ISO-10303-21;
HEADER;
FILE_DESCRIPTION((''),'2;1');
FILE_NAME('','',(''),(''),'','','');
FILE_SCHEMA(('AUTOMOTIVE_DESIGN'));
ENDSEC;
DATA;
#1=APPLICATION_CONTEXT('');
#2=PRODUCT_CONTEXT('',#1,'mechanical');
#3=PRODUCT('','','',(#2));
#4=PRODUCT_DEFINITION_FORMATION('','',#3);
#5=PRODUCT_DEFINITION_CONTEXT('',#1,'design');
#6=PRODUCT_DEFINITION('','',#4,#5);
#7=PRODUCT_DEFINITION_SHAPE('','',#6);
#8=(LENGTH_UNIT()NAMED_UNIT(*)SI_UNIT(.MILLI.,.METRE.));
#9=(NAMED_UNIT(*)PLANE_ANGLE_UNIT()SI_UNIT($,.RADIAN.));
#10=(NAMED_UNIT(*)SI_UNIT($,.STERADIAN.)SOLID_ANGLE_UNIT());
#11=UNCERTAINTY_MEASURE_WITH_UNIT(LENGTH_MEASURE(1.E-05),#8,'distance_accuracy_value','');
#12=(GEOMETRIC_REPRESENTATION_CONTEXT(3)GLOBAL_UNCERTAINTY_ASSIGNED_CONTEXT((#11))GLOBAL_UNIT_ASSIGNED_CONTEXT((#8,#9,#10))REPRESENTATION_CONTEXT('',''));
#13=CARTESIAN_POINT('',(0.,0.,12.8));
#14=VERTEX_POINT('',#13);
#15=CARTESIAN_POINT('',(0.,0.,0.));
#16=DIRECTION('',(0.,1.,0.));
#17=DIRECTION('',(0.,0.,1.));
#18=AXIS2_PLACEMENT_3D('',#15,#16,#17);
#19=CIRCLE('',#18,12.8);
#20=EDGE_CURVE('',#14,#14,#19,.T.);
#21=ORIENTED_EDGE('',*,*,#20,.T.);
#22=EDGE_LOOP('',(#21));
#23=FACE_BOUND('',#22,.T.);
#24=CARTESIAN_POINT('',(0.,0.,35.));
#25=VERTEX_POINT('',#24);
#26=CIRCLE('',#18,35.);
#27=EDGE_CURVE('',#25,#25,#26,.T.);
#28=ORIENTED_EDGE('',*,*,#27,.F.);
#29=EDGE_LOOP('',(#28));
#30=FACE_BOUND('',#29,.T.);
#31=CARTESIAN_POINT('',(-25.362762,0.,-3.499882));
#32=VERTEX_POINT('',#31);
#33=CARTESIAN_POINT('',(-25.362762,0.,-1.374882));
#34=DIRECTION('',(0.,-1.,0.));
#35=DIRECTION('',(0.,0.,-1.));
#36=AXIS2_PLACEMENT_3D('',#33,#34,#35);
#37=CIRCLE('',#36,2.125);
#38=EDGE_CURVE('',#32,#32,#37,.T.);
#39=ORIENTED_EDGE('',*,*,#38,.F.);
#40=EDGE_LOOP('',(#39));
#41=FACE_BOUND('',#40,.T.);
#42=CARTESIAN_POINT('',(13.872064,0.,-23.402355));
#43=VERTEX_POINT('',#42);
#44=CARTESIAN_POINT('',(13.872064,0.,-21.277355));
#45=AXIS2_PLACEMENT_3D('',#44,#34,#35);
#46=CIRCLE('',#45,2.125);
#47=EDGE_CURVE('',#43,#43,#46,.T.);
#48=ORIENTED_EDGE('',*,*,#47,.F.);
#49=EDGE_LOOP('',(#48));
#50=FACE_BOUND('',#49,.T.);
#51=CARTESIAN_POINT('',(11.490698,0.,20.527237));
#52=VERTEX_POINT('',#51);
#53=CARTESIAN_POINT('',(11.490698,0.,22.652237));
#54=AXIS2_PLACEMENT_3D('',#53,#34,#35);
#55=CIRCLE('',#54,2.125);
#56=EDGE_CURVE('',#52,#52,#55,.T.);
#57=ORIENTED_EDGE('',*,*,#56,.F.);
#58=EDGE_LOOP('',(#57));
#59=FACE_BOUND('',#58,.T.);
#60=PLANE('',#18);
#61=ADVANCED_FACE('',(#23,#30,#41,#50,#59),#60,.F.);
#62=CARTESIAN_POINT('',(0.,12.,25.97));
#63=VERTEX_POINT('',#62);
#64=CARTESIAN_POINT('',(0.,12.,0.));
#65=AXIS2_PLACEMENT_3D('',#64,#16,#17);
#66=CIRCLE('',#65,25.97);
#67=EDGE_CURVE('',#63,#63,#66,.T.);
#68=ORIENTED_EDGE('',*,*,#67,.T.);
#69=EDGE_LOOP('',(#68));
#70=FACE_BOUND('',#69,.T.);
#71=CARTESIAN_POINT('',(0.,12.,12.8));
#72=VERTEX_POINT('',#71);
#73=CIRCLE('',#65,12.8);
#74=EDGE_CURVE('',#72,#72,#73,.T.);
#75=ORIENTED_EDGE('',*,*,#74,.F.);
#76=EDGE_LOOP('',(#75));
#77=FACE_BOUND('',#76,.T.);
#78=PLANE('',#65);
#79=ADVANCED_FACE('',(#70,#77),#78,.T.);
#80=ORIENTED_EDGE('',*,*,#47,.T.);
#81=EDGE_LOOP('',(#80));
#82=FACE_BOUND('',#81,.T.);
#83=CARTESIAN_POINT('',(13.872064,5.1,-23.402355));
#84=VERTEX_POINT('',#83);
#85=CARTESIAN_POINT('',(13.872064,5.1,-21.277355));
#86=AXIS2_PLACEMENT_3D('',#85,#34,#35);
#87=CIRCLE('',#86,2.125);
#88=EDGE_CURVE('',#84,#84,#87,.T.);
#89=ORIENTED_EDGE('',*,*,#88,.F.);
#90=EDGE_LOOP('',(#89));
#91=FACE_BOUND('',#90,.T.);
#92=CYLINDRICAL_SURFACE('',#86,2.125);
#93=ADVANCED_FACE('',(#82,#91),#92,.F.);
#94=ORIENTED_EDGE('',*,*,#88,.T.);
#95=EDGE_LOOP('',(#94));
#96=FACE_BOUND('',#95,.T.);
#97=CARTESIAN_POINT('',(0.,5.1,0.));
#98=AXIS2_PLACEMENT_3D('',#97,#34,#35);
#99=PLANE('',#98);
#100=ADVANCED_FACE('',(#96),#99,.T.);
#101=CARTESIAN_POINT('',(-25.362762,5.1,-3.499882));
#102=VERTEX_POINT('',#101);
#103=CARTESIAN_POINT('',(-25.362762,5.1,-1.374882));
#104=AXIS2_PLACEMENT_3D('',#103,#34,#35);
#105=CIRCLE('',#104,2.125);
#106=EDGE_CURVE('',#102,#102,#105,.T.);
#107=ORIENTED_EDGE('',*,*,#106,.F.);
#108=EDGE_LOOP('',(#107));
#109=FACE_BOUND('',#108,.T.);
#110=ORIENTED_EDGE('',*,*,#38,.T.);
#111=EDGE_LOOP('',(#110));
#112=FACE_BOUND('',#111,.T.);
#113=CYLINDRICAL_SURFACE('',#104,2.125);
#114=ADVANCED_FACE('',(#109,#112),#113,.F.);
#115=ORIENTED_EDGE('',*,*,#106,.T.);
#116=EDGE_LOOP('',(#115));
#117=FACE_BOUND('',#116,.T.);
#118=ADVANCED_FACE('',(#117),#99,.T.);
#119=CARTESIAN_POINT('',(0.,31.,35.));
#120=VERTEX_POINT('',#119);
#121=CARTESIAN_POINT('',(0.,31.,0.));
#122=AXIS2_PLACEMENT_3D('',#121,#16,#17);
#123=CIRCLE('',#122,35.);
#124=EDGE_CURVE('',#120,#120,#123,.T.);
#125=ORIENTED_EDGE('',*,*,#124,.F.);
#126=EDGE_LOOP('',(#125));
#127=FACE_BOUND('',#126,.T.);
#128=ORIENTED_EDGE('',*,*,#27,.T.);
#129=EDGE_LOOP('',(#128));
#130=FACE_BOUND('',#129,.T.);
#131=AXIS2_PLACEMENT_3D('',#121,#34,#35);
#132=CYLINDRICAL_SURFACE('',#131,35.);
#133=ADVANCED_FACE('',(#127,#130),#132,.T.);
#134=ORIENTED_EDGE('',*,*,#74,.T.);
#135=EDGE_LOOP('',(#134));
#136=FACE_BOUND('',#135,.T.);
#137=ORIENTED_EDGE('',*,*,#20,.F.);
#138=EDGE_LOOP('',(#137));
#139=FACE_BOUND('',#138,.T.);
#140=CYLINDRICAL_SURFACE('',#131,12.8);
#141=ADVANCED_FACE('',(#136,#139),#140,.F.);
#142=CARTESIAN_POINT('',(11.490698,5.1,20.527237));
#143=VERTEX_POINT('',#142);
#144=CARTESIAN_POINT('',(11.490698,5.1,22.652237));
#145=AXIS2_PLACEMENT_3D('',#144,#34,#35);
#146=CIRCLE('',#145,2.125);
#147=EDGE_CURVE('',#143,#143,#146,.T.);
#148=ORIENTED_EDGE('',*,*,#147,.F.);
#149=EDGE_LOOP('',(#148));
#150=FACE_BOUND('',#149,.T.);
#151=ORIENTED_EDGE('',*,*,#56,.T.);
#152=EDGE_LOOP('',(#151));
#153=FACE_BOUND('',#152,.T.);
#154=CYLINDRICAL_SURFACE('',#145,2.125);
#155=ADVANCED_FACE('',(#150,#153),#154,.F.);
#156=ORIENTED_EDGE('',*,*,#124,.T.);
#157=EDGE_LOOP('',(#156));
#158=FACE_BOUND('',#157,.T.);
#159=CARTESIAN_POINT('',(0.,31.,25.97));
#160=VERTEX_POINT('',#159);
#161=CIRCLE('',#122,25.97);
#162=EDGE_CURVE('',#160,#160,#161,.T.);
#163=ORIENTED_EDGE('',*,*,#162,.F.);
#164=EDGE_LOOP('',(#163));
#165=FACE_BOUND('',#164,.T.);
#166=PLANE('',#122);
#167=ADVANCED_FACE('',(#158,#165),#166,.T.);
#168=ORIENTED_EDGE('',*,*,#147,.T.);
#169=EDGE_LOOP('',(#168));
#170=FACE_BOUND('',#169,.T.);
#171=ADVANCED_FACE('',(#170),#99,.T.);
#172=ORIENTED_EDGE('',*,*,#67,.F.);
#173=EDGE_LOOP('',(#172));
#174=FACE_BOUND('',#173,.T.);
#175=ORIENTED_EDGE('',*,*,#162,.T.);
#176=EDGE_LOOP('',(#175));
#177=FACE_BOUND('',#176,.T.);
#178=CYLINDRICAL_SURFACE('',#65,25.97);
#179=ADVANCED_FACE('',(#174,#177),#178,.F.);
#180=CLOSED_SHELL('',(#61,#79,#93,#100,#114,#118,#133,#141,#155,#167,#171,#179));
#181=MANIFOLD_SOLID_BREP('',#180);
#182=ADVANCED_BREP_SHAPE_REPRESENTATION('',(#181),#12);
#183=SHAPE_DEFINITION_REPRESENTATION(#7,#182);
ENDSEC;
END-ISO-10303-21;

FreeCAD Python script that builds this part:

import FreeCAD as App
import Part
import Sketcher
Q = App.Units.Quantity

doc = App.newDocument("Part")
params = doc.addObject("Spreadsheet::Sheet", "Params")
for row, (alias, value) in enumerate([
    ("sketch1_diameter", "70 mm"),
    ("sketch1_diameter2", "25.6 mm"),
    ("pad1_length", "31 mm"),
    ("sketch2_diameter", "51.94 mm"),
    ("pocket1_length", "19 mm"),
    ("sketch3_diameter", "4.25 mm"),
    ("pocket2_length", "5.1 mm"),
], start=1):
    params.set(f"A{row}", alias)
    params.set(f"B{row}", "=" + value)
    params.setAlias(f"B{row}", alias)

body = doc.addObject("PartDesign::Body", "Body")

sketch1 = doc.addObject("Sketcher::SketchObject", "Sketch")
body.addObject(sketch1)
sketch1.AttachmentSupport = (doc.XZ_Plane, [""])
sketch1.MapMode = "FlatFace"
sketch1.addGeometry(Part.Circle(App.Vector(0, 0, 0), App.Vector(0, 0, 1), 35), False)
sketch1.addGeometry(Part.Circle(App.Vector(0, 0, 0), App.Vector(0, 0, 1), 12.8), False)
sketch1.addConstraint(Sketcher.Constraint("Coincident", 0, 3, -1, 1))
sketch1.addConstraint(Sketcher.Constraint("Coincident", 1, 3, -1, 1))
sketch1.addConstraint(Sketcher.Constraint("Diameter", 0, Q("70 mm")))
sketch1.addConstraint(Sketcher.Constraint("Diameter", 1, Q("25.6 mm")))
sketch1.setExpression("Constraints[2]", "Params.sketch1_diameter")
sketch1.setExpression("Constraints[3]", "Params.sketch1_diameter2")
pad1 = doc.addObject("PartDesign::Pad", "Pad")
body.addObject(pad1)
pad1.Profile = sketch1
pad1.setExpression("Length", "Params.pad1_length")
pad1.Reversed = True

sketch2 = doc.addObject("Sketcher::SketchObject", "Sketch001")
body.addObject(sketch2)
sketch2.AttachmentSupport = (doc.XZ_Plane, [""])
sketch2.MapMode = "FlatFace"
sketch2.AttachmentOffset = App.Placement(App.Vector(0, 0, -31), App.Rotation())
sketch2.addGeometry(Part.Circle(App.Vector(0, 0, 0), App.Vector(0, 0, 1), 25.97), False)
sketch2.addConstraint(Sketcher.Constraint("Coincident", 0, 3, -1, 1))
sketch2.addConstraint(Sketcher.Constraint("Diameter", 0, Q("51.94 mm")))
sketch2.setExpression("Constraints[1]", "Params.sketch2_diameter")
pocket1 = doc.addObject("PartDesign::Pocket", "Pocket")
body.addObject(pocket1)
pocket1.Profile = sketch2
pocket1.setExpression("Length", "Params.pocket1_length")
pocket1.Reversed = True

sketch3 = doc.addObject("Sketcher::SketchObject", "Sketch002")
body.addObject(sketch3)
sketch3.AttachmentSupport = (doc.XZ_Plane, [""])
sketch3.MapMode = "FlatFace"
sketch3.addGeometry(Part.Circle(App.Vector(-25.362762, -1.374882, 0), App.Vector(0, 0, 1), 2.125), False)
sketch3.addGeometry(Part.Circle(App.Vector(11.490698, 22.652237, 0), App.Vector(0, 0, 1), 2.125), False)
sketch3.addGeometry(Part.Circle(App.Vector(13.872064, -21.277355, 0), App.Vector(0, 0, 1), 2.125), False)
sketch3.addConstraint(Sketcher.Constraint("Equal", 0, 1))
sketch3.addConstraint(Sketcher.Constraint("Equal", 1, 2))
sketch3.addConstraint(Sketcher.Constraint("Diameter", 0, Q("4.25 mm")))
sketch3.addConstraint(Sketcher.Constraint("DistanceX", 0, 3, 1, 3, Q("36.85346 mm")))
sketch3.addConstraint(Sketcher.Constraint("DistanceY", 0, 3, 1, 3, Q("24.02712 mm")))
sketch3.addConstraint(Sketcher.Constraint("DistanceX", 0, 3, -1, 1, Q("25.362762 mm")))
sketch3.addConstraint(Sketcher.Constraint("DistanceY", 0, 3, -1, 1, Q("1.374882 mm")))
sketch3.addConstraint(Sketcher.Constraint("DistanceX", -1, 1, 2, 3, Q("13.872064 mm")))
sketch3.addConstraint(Sketcher.Constraint("DistanceY", 2, 3, -1, 1, Q("21.277355 mm")))
sketch3.setExpression("Constraints[2]", "Params.sketch3_diameter")
pocket2 = doc.addObject("PartDesign::Pocket", "Pocket001")
body.addObject(pocket2)
pocket2.Profile = sketch3
pocket2.setExpression("Length", "Params.pocket2_length")

doc.recompute()
